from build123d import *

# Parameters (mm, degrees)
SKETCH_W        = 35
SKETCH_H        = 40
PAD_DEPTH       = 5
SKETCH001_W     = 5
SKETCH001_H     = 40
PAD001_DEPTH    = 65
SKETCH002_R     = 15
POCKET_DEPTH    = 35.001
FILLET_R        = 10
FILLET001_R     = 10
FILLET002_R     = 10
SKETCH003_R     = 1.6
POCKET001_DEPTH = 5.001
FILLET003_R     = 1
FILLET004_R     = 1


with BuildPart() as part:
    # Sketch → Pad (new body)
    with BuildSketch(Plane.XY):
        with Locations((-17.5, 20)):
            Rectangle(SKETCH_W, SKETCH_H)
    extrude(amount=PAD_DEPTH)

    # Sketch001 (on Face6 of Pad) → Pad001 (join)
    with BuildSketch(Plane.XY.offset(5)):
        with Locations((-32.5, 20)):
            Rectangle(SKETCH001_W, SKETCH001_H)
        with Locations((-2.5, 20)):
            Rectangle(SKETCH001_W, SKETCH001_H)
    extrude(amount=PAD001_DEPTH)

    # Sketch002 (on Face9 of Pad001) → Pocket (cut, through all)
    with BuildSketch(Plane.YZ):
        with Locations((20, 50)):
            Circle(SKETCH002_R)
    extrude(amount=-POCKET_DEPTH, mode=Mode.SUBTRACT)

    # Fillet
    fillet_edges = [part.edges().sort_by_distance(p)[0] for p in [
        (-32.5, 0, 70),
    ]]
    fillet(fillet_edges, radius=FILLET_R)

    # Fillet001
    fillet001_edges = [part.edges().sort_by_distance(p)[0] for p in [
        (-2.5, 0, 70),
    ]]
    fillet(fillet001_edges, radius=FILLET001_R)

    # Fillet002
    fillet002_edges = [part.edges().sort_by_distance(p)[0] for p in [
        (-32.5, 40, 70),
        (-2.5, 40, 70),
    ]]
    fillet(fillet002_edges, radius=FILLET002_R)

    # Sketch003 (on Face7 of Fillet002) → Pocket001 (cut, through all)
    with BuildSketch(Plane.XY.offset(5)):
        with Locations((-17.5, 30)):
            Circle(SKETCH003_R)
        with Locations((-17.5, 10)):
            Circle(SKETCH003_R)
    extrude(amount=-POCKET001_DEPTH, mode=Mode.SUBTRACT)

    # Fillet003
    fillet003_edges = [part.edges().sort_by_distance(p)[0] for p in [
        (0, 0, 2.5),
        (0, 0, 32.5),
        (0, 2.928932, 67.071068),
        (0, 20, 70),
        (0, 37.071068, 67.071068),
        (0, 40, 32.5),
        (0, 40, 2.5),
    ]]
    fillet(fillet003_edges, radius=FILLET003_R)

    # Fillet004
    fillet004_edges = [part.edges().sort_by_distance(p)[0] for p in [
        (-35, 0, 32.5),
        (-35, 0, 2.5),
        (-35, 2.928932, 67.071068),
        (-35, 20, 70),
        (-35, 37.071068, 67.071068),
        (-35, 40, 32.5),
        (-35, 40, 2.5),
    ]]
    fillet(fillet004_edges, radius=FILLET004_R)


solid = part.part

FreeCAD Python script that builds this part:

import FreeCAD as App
import Part
import Sketcher
from FreeCAD import Vector


def edges_at(feature, points):
    """Names of the edges that pass closest to the given points."""
    edges = feature.Shape.Edges
    near = lambda p: min(range(len(edges)), key=lambda i: edges[i].distToShape(Part.Vertex(*p))[0])
    return sorted({f"Edge{near(p) + 1}" for p in points})

doc = App.newDocument("Part")
body = doc.addObject("PartDesign::Body", "Body")

sketch1 = doc.addObject("Sketcher::SketchObject", "Sketch")
body.addObject(sketch1)
sketch1.AttachmentSupport = (doc.XY_Plane, [""])
sketch1.MapMode = "FlatFace"
sketch1.addGeometry(Part.LineSegment(Vector(-35, 40, 0), Vector(-35, 0, 0)), False)
sketch1.addGeometry(Part.LineSegment(Vector(-35, 0, 0), Vector(0, 0, 0)), False)
sketch1.addGeometry(Part.LineSegment(Vector(0, 0, 0), Vector(0, 40, 0)), False)
sketch1.addGeometry(Part.LineSegment(Vector(0, 40, 0), Vector(-35, 40, 0)), False)
sketch1.addConstraint(Sketcher.Constraint("Coincident", 0, 2, 1, 1))
sketch1.addConstraint(Sketcher.Constraint("Coincident", 1, 2, 2, 1))
sketch1.addConstraint(Sketcher.Constraint("Coincident", 2, 2, 3, 1))
sketch1.addConstraint(Sketcher.Constraint("Coincident", 3, 2, 0, 1))
sketch1.addConstraint(Sketcher.Constraint("Vertical", 0))
sketch1.addConstraint(Sketcher.Constraint("Horizontal", 1))
sketch1.addConstraint(Sketcher.Constraint("Vertical", 2))
sketch1.addConstraint(Sketcher.Constraint("Horizontal", 3))
sketch1.addConstraint(Sketcher.Constraint("Coincident", 1, 2, -1, 1))
sketch1.addConstraint(Sketcher.Constraint("DistanceX", 1, 1, 1, 2, 35.0))
sketch1.addConstraint(Sketcher.Constraint("DistanceY", 0, 2, 0, 1, 40.0))
pad1 = doc.addObject("PartDesign::Pad", "Pad")
body.addObject(pad1)
pad1.Profile = sketch1
pad1.Length = 5

sketch2 = doc.addObject("Sketcher::SketchObject", "Sketch001")
body.addObject(sketch2)
sketch2.AttachmentSupport = (doc.XY_Plane, [""])
sketch2.MapMode = "FlatFace"
sketch2.AttachmentOffset = App.Placement(Vector(0, 0, 5), App.Rotation())
sketch2.addGeometry(Part.LineSegment(Vector(-35, 40, 0), Vector(-35, 0, 0)), False)
sketch2.addGeometry(Part.LineSegment(Vector(-35, 0, 0), Vector(-30, 0, 0)), False)
sketch2.addGeometry(Part.LineSegment(Vector(-30, 0, 0), Vector(-30, 40, 0)), False)
sketch2.addGeometry(Part.LineSegment(Vector(-30, 40, 0), Vector(-35, 40, 0)), False)
sketch2.addGeometry(Part.LineSegment(Vector(-5, 40, 0), Vector(-5, 0, 0)), False)
sketch2.addGeometry(Part.LineSegment(Vector(-5, 0, 0), Vector(0, 0, 0)), False)
sketch2.addGeometry(Part.LineSegment(Vector(0, 0, 0), Vector(0, 40, 0)), False)
sketch2.addGeometry(Part.LineSegment(Vector(0, 40, 0), Vector(-5, 40, 0)), False)
sketch2.addConstraint(Sketcher.Constraint("Coincident", 0, 2, 1, 1))
sketch2.addConstraint(Sketcher.Constraint("Coincident", 1, 2, 2, 1))
sketch2.addConstraint(Sketcher.Constraint("Coincident", 2, 2, 3, 1))
sketch2.addConstraint(Sketcher.Constraint("Coincident", 3, 2, 0, 1))
sketch2.addConstraint(Sketcher.Constraint("Coincident", 4, 2, 5, 1))
sketch2.addConstraint(Sketcher.Constraint("Coincident", 5, 2, 6, 1))
sketch2.addConstraint(Sketcher.Constraint("Coincident", 6, 2, 7, 1))
sketch2.addConstraint(Sketcher.Constraint("Coincident", 7, 2, 4, 1))
sketch2.addConstraint(Sketcher.Constraint("Vertical", 0))
sketch2.addConstraint(Sketcher.Constraint("Horizontal", 1))
sketch2.addConstraint(Sketcher.Constraint("Vertical", 2))
sketch2.addConstraint(Sketcher.Constraint("Horizontal", 3))
sketch2.addConstraint(Sketcher.Constraint("Vertical", 4))
sketch2.addConstraint(Sketcher.Constraint("Horizontal", 5))
sketch2.addConstraint(Sketcher.Constraint("Vertical", 6))
sketch2.addConstraint(Sketcher.Constraint("Horizontal", 7))
sketch2.addConstraint(Sketcher.Constraint("Coincident", 5, 2, -1, 1))
sketch2.addConstraint(Sketcher.Constraint("PointOnObject", 0, 2, -1))
sketch2.addConstraint(Sketcher.Constraint("Horizontal", 3, 2, 6, 2))
sketch2.addConstraint(Sketcher.Constraint("Equal", 3, 5))
sketch2.addConstraint(Sketcher.Constraint("DistanceX", 1, 1, 1, 2, 5.0))
sketch2.addConstraint(Sketcher.Constraint("DistanceY", 0, 2, 0, 1, 40.0))
sketch2.addConstraint(Sketcher.Constraint("DistanceX", 0, 2, -1, 1, 35.0))
pad2 = doc.addObject("PartDesign::Pad", "Pad001")
body.addObject(pad2)
pad2.Profile = sketch2
pad2.Length = 65

sketch3 = doc.addObject("Sketcher::SketchObject", "Sketch002")
body.addObject(sketch3)
sketch3.AttachmentSupport = (doc.YZ_Plane, [""])
sketch3.MapMode = "FlatFace"
sketch3.addGeometry(Part.Circle(Vector(20, 50, 0), Vector(0, 0, 1), 15), False)
sketch3.addConstraint(Sketcher.Constraint("Diameter", 0, 30.0))
sketch3.addConstraint(Sketcher.Constraint("DistanceX", -1, 1, 0, 3, 20.0))
sketch3.addConstraint(Sketcher.Constraint("DistanceY", -1, 1, 0, 3, 50.0))
pocket1 = doc.addObject("PartDesign::Pocket", "Pocket")
body.addObject(pocket1)
pocket1.Profile = sketch3
pocket1.Type = "ThroughAll"
doc.recompute()

fillet = doc.addObject("PartDesign::Fillet", "Fillet")
body.addObject(fillet)
fillet.Base = (pocket1, edges_at(pocket1, [(-32.5, 0, 70)]))
fillet.Radius = 10
doc.recompute()

fillet2 = doc.addObject("PartDesign::Fillet", "Fillet001")
body.addObject(fillet2)
fillet2.Base = (fillet, edges_at(fillet, [(-2.5, 0, 70)]))
fillet2.Radius = 10
doc.recompute()

fillet3 = doc.addObject("PartDesign::Fillet", "Fillet002")
body.addObject(fillet3)
fillet3.Base = (fillet2, edges_at(fillet2, [(-32.5, 40, 70), (-2.5, 40, 70)]))
fillet3.Radius = 10

sketch4 = doc.addObject("Sketcher::SketchObject", "Sketch003")
body.addObject(sketch4)
sketch4.AttachmentSupport = (doc.XY_Plane, [""])
sketch4.MapMode = "FlatFace"
sketch4.AttachmentOffset = App.Placement(Vector(0, 0, 5), App.Rotation())
sketch4.addGeometry(Part.Circle(Vector(-17.5, 30, 0), Vector(0, 0, 1), 1.6), False)
sketch4.addGeometry(Part.Circle(Vector(-17.5, 10, 0), Vector(0, 0, 1), 1.6), False)
sketch4.addConstraint(Sketcher.Constraint("Equal", 0, 1))
sketch4.addConstraint(Sketcher.Constraint("Vertical", 0, 3, 1, 3))
sketch4.addConstraint(Sketcher.Constraint("Diameter", 0, 3.2))
sketch4.addConstraint(Sketcher.Constraint("DistanceY", -1, 1, 0, 3, 30.0))
sketch4.addConstraint(Sketcher.Constraint("DistanceY", -1, 1, 1, 3, 10.0))
sketch4.addConstraint(Sketcher.Constraint("DistanceX", 0, 3, -1, 1, 17.5))
pocket2 = doc.addObject("PartDesign::Pocket", "Pocket001")
body.addObject(pocket2)
pocket2.Profile = sketch4
pocket2.Type = "ThroughAll"
doc.recompute()

fillet4 = doc.addObject("PartDesign::Fillet", "Fillet003")
body.addObject(fillet4)
fillet4.Base = (pocket2, edges_at(pocket2, [
    (0, 0, 30),
    (0, 0, 30),
    (0, 2.929, 67.071),
    (0, 20, 70),
    (0, 37.071, 67.071),
    (0, 40, 30),
    (0, 40, 30),
]))
fillet4.Radius = 1
doc.recompute()

fillet5 = doc.addObject("PartDesign::Fillet", "Fillet004")
body.addObject(fillet5)
fillet5.Base = (fillet4, edges_at(fillet4, [
    (-35, 0, 30),
    (-35, 0, 30),
    (-35, 2.929, 67.071),
    (-35, 20, 70),
    (-35, 37.071, 67.071),
    (-35, 40, 30),
    (-35, 40, 30),
]))
fillet5.Radius = 1

doc.recompute()
